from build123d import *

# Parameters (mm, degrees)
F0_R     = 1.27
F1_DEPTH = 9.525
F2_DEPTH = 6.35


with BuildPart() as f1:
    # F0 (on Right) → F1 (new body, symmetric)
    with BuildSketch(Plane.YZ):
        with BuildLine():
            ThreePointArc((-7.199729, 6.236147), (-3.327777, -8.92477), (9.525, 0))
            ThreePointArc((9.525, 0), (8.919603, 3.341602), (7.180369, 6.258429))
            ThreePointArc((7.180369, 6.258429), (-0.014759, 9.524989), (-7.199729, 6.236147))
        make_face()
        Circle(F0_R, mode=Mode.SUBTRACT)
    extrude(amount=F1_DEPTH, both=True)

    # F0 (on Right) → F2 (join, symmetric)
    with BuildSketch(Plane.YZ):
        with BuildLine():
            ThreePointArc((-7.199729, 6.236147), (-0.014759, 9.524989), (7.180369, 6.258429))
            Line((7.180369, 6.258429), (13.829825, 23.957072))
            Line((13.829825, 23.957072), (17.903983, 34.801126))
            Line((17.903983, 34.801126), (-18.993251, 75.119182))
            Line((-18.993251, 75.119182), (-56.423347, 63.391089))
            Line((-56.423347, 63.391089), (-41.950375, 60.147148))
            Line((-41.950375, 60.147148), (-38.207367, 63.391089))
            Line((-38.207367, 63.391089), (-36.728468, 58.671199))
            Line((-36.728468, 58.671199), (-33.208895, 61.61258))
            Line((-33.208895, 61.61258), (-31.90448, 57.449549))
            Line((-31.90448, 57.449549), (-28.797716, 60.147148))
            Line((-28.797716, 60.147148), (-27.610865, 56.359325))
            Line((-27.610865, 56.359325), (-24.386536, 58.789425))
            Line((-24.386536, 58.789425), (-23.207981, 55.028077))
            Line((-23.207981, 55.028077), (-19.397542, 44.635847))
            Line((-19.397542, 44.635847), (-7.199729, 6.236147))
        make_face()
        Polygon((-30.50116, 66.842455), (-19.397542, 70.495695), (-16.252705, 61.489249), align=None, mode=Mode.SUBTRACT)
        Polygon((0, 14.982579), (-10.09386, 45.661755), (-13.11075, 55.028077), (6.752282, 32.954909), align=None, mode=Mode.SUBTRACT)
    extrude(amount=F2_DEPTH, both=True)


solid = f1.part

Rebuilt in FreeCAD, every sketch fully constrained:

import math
import FreeCAD as App
import Part
import Sketcher
Q = App.Units.Quantity

doc = App.newDocument("Part")
body = doc.addObject("PartDesign::Body", "Body")

# Sketch on YZ plane
sketch1 = doc.addObject("Sketcher::SketchObject", "Sketch")
body.addObject(sketch1)
sketch1.AttachmentSupport = (doc.YZ_Plane, [""])
sketch1.MapMode = "FlatFace"
sketch1.addGeometry([
    Part.ArcOfCircle(Part.Circle(App.Vector(0, 0, 0), App.Vector(0, 0, 1), 9.5), math.radians(139), math.radians(360)),
    Part.ArcOfCircle(Part.Circle(App.Vector(0, 0, 0), App.Vector(0, 0, 1), 9.5), math.radians(0), math.radians(41)),
    Part.ArcOfCircle(Part.Circle(App.Vector(0, 0, 0), App.Vector(0, 0, 1), 9.5), math.radians(41), math.radians(139)),
    Part.Circle(App.Vector(0, 0, 0), App.Vector(0, 0, 1), 1.3),
], False)
sketch1.addConstraint([
    Sketcher.Constraint("Tangent", 0, 2, 1, 1),
    Sketcher.Constraint("Tangent", 1, 2, 2, 1),
    Sketcher.Constraint("Tangent", 2, 2, 0, 1),
    Sketcher.Constraint("Coincident", 0, 3, -1, 1),
    Sketcher.Constraint("Coincident", 3, 3, -1, 1),
    Sketcher.Constraint("PointOnObject", 0, 2, -1),
    Sketcher.Constraint("Diameter", 3, Q("0.1 in")),
    Sketcher.Constraint("Radius", 0, Q("0.375 in")),
    Sketcher.Constraint("DistanceX", -1, 1, 1, 2, 7.180369),
    Sketcher.Constraint("DistanceX", 2, 2, -1, 1, 7.199729),
])
pad1 = doc.addObject("PartDesign::Pad", "Pad")
body.addObject(pad1)
pad1.Profile = sketch1
pad1.Length = Q("0.75 in")
pad1.Midplane = True

# Sketch on YZ plane
sketch2 = doc.addObject("Sketcher::SketchObject", "Sketch001")
body.addObject(sketch2)
sketch2.AttachmentSupport = (doc.YZ_Plane, [""])
sketch2.MapMode = "FlatFace"
sketch2.addGeometry([
    Part.ArcOfCircle(Part.Circle(App.Vector(0, 0.000001, 0), App.Vector(0, 0, 1), 9.525), math.radians(41.075493), math.radians(139.102067)),  # 0
    Part.LineSegment(App.Vector(7.180369, 6.258429, 0), App.Vector(13.829825, 23.957072, 0)),  # 1
    Part.LineSegment(App.Vector(13.829825, 23.957072, 0), App.Vector(17.903983, 34.801126, 0)),  # 2
    Part.LineSegment(App.Vector(17.903983, 34.801126, 0), App.Vector(-18.993251, 75.119182, 0)),  # 3
    Part.LineSegment(App.Vector(-18.993251, 75.119182, 0), App.Vector(-56.423347, 63.391089, 0)),  # 4
    Part.LineSegment(App.Vector(-56.423347, 63.391089, 0), App.Vector(-41.950375, 60.147148, 0)),  # 5
    Part.LineSegment(App.Vector(-41.950375, 60.147148, 0), App.Vector(-38.207367, 63.391089, 0)),  # 6
    Part.LineSegment(App.Vector(-38.207367, 63.391089, 0), App.Vector(-36.728468, 58.671199, 0)),  # 7
    Part.LineSegment(App.Vector(-36.728468, 58.671199, 0), App.Vector(-33.208895, 61.61258, 0)),  # 8
    Part.LineSegment(App.Vector(-33.208895, 61.61258, 0), App.Vector(-31.90448, 57.449549, 0)),  # 9
    Part.LineSegment(App.Vector(-31.90448, 57.449549, 0), App.Vector(-28.797716, 60.147148, 0)),  # 10
    Part.LineSegment(App.Vector(-28.797716, 60.147148, 0), App.Vector(-27.610865, 56.359325, 0)),  # 11
    Part.LineSegment(App.Vector(-27.610865, 56.359325, 0), App.Vector(-24.386536, 58.789425, 0)),  # 12
    Part.LineSegment(App.Vector(-24.386536, 58.789425, 0), App.Vector(-23.207981, 55.028077, 0)),  # 13
    Part.LineSegment(App.Vector(-23.207981, 55.028077, 0), App.Vector(-19.397542, 44.635847, 0)),  # 14
    Part.LineSegment(App.Vector(-19.397542, 44.635847, 0), App.Vector(-7.199729, 6.236147, 0)),  # 15
    Part.LineSegment(App.Vector(6.752282, 32.954909, 0), App.Vector(0, 14.982579, 0)),  # 16
    Part.LineSegment(App.Vector(0, 14.982579, 0), App.Vector(-10.09386, 45.661755, 0)),  # 17
    Part.LineSegment(App.Vector(-10.09386, 45.661755, 0), App.Vector(-13.11075, 55.028077, 0)),  # 18
    Part.LineSegment(App.Vector(-13.11075, 55.028077, 0), App.Vector(6.752282, 32.954909, 0)),  # 19
    Part.LineSegment(App.Vector(-16.252705, 61.489249, 0), App.Vector(-30.50116, 66.842455, 0)),  # 20
    Part.LineSegment(App.Vector(-30.50116, 66.842455, 0), App.Vector(-19.397542, 70.495695, 0)),  # 21
    Part.LineSegment(App.Vector(-19.397542, 70.495695, 0), App.Vector(-16.252705, 61.489249, 0)),  # 22
], False)
sketch2.addConstraint([
    Sketcher.Constraint("Coincident", 0, 1, 1, 1),
    Sketcher.Constraint("Coincident", 1, 2, 2, 1),
    Sketcher.Constraint("Coincident", 2, 2, 3, 1),
    Sketcher.Constraint("Coincident", 3, 2, 4, 1),
    Sketcher.Constraint("Coincident", 4, 2, 5, 1),
    Sketcher.Constraint("Coincident", 5, 2, 6, 1),
    Sketcher.Constraint("Coincident", 6, 2, 7, 1),
    Sketcher.Constraint("Coincident", 7, 2, 8, 1),
    Sketcher.Constraint("Coincident", 8, 2, 9, 1),
    Sketcher.Constraint("Coincident", 9, 2, 10, 1),
    Sketcher.Constraint("Coincident", 10, 2, 11, 1),
    Sketcher.Constraint("Coincident", 11, 2, 12, 1),
    Sketcher.Constraint("Coincident", 12, 2, 13, 1),
    Sketcher.Constraint("Coincident", 13, 2, 14, 1),
    Sketcher.Constraint("Coincident", 14, 2, 15, 1),
    Sketcher.Constraint("Coincident", 15, 2, 0, 2),
    Sketcher.Constraint("Coincident", 16, 2, 17, 1),
    Sketcher.Constraint("Coincident", 17, 2, 18, 1),
    Sketcher.Constraint("Coincident", 18, 2, 19, 1),
    Sketcher.Constraint("Coincident", 19, 2, 16, 1),
    Sketcher.Constraint("Coincident", 20, 2, 21, 1),
    Sketcher.Constraint("Coincident", 21, 2, 22, 1),
    Sketcher.Constraint("Coincident", 22, 2, 20, 1),
    Sketcher.Constraint("Coincident", 0, 3, -1, 1),
    Sketcher.Constraint("PointOnObject", 16, 2, -2),
    Sketcher.Constraint("Radius", 0, Q("0.375 in")),
    Sketcher.Constraint("DistanceX", 12, 2, -1, 1, Q("0.9600998 in")),
    Sketcher.Constraint("DistanceX", 13, 2, -1, 1, Q("0.9137 in")),
    Sketcher.Constraint("DistanceX", 1, 2, 2, 2, Q("0.1603999 in")),
    Sketcher.Constraint("DistanceY", -1, 1, 7, 2, 58.671199),
    Sketcher.Constraint("DistanceX", 5, 2, 1, 2, 55.7802),
    Sketcher.Constraint("DistanceX", 6, 2, 7, 2, 1.478899),
    Sketcher.Constraint("DistanceY", 8, 2, 3, 2, 13.506602),
    Sketcher.Constraint("DistanceY", 9, 2, 5, 2, 2.697599),
    Sketcher.Constraint("DistanceY", 9, 2, 10, 2, 2.697599),
    Sketcher.Constraint("DistanceX", 6, 2, 11, 2, 10.596502),
    Sketcher.Constraint("DistanceY", 11, 2, 12, 2, 2.4301),
    Sketcher.Constraint("DistanceX", 9, 2, 13, 2, 8.696499),
    Sketcher.Constraint("DistanceY", 14, 2, 9, 2, 12.813702),
    Sketcher.Constraint("DistanceX", 15, 2, 0, 1, 14.380098),
    Sketcher.Constraint("DistanceY", 15, 2, 14, 2, 38.3997),
    Sketcher.Constraint("DistanceX", 19, 2, 2, 2, 11.151701),
    Sketcher.Constraint("Distance", 1, 18.906539),
    Sketcher.Constraint("Distance", 2, 11.584139),
    Sketcher.Constraint("Distance", 3, 54.65301),
    Sketcher.Constraint("Distance", 7, 4.946161),
    Sketcher.Constraint("Distance", 8, 4.586842),
    Sketcher.Constraint("Distance", 10, 4.114489),
    Sketcher.Constraint("Distance", 11, 3.96941),
    Sketcher.Constraint("Distance", 14, 11.06878),
    Sketcher.Constraint("Distance", 15, 40.29049),
    Sketcher.Constraint("Distance", 21, 11.689161),
    Sketcher.Constraint("Distance", 22, 9.53971),
    Sketcher.Constraint("DistanceX", -1, 1, 0, 1, 7.180369),
    Sketcher.Constraint("DistanceY", -1, 1, 1, 2, 23.957072),
    Sketcher.Constraint("DistanceX", 3, 2, -1, 1, 18.993251),
    Sketcher.Constraint("DistanceY", -1, 1, 4, 2, 63.391089),
    Sketcher.Constraint("DistanceY", -1, 1, 16, 2, 14.982579),
    Sketcher.Constraint("DistanceX", 17, 2, -1, 1, 10.09386),
    Sketcher.Constraint("DistanceX", 18, 2, -1, 1, 13.11075),
    Sketcher.Constraint("DistanceY", -1, 1, 19, 2, 32.954909),
    Sketcher.Constraint("DistanceX", 20, 2, -1, 1, 30.50116),
    Sketcher.Constraint("DistanceY", -1, 1, 22, 2, 61.489249),
    Sketcher.Constraint("DistanceX", 4, 2, 2, 2, 74.32733),
    Sketcher.Constraint("DistanceX", 5, 2, 6, 2, 3.743008),
    Sketcher.Constraint("DistanceY", 14, 2, 17, 2, 1.025908),
    Sketcher.Constraint("DistanceY", 14, 2, 18, 2, 10.39223),
    Sketcher.Constraint("DistanceY", 12, 2, 20, 2, 8.05303),
    Sketcher.Constraint("DistanceX", 21, 2, 3, 2, 0.404291),
])
pad2 = doc.addObject("PartDesign::Pad", "Pad001")
body.addObject(pad2)
pad2.Profile = sketch2
pad2.Length = Q("0.5 in")
pad2.Midplane = True

doc.recompute()
